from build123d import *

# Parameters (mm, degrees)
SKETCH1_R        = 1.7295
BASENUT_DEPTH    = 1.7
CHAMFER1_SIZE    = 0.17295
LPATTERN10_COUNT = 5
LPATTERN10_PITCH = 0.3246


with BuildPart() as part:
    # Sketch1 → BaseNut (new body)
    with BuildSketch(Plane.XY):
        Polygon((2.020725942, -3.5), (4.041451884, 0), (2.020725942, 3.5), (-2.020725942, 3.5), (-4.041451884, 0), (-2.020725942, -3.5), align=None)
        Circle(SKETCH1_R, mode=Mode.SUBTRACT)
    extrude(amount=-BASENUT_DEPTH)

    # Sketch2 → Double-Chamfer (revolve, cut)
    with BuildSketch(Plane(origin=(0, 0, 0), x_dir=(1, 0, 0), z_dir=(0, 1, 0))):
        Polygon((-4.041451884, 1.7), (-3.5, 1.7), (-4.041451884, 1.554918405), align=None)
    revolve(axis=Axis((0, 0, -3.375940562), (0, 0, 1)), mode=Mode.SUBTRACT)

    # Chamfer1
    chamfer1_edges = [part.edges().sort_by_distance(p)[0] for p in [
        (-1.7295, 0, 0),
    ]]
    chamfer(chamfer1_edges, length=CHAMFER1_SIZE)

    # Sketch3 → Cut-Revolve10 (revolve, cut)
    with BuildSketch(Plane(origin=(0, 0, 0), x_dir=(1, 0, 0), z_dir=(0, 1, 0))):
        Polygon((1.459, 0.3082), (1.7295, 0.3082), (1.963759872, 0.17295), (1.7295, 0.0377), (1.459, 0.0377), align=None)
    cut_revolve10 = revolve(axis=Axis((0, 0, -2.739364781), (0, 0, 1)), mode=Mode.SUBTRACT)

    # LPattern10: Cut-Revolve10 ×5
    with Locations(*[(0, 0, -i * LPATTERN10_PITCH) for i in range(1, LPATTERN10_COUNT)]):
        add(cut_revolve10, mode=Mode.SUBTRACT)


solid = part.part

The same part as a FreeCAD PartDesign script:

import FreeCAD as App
import Part
import Sketcher

V = App.Vector
Q = App.Units.Quantity


def edges_at(feature, points):
    """Names of the edges that pass closest to the given points."""
    edges = feature.Shape.Edges
    near = lambda p: min(range(len(edges)), key=lambda i: edges[i].distToShape(Part.Vertex(*p))[0])
    return sorted({f"Edge{near(p) + 1}" for p in points})

doc = App.newDocument("Part")
params = doc.addObject("Spreadsheet::Sheet", "Params")
for row, (alias, value) in enumerate([
    ("pad1_length", "1.7 mm"),
    ("groove_angle", "360 deg"),
    ("chamfer_size", "0.17295 mm"),
    ("groove2_angle", "360 deg"),
    ("linearpattern_pitch", "0.3246 mm"),
], start=1):
    params.set(f"A{row}", alias)
    params.set(f"B{row}", "=" + value)
    params.setAlias(f"B{row}", alias)

body = doc.addObject("PartDesign::Body", "Body")

# Sketch on XY plane
sketch1 = body.newObject("Sketcher::SketchObject", "Sketch")
sketch1.AttachmentSupport = (doc.getObject("XY_Plane"), [""])
sketch1.MapMode = "FlatFace"
sketch1.addGeometry([
    Part.LineSegment(V(2.020726, -3.5, 0), V(4.041452, 0, 0)),  # 0
    Part.LineSegment(V(4.041452, 0, 0), V(2.020726, 3.5, 0)),  # 1
    Part.LineSegment(V(2.020726, 3.5, 0), V(-2.020726, 3.5, 0)),  # 2
    Part.LineSegment(V(-2.020726, 3.5, 0), V(-4.041452, 0, 0)),  # 3
    Part.LineSegment(V(-4.041452, 0, 0), V(-2.020726, -3.5, 0)),  # 4
    Part.LineSegment(V(-2.020726, -3.5, 0), V(2.020726, -3.5, 0)),  # 5
    Part.Circle(V(0, 0, 0), V(0, 0, 1), 1.7295),  # 6
], False)
sketch1.addConstraint([
    Sketcher.Constraint("Coincident", 0, 2, 1, 1),
    Sketcher.Constraint("Coincident", 1, 2, 2, 1),
    Sketcher.Constraint("Coincident", 2, 2, 3, 1),
    Sketcher.Constraint("Coincident", 3, 2, 4, 1),
    Sketcher.Constraint("Coincident", 4, 2, 5, 1),
    Sketcher.Constraint("Coincident", 5, 2, 0, 1),
    Sketcher.Constraint("Horizontal", 2),
    Sketcher.Constraint("Horizontal", 5),
    Sketcher.Constraint("Coincident", 6, 3, -1, 1),
    Sketcher.Constraint("Symmetric", 0, 2, 3, 2, -1, 1),
    Sketcher.Constraint("Symmetric", 1, 2, 4, 2, -1, 1),
    Sketcher.Constraint("PointOnObject", 0, 2, -1),
    Sketcher.Constraint("Parallel", 0, 3),
    Sketcher.Constraint("Vertical", 2, 2, 4, 2),
    Sketcher.Constraint("Angle", 0, Q("60 deg")),
    Sketcher.Constraint("Diameter", 6, 3.459),
    Sketcher.Constraint("DistanceY", 4, 2, 2, 2, 7.0),
    Sketcher.Constraint("DistanceX", 2, 2, 2, 1, 4.041452),
])
pad1 = body.newObject("PartDesign::Pad", "Pad")
pad1.Profile = sketch1
pad1.setExpression("Length", "Params.pad1_length")
pad1.Reversed = True

# Sketch on XZ plane
sketch2 = body.newObject("Sketcher::SketchObject", "Sketch001")
sketch2.AttachmentSupport = (doc.getObject("XZ_Plane"), [""])
sketch2.MapMode = "FlatFace"
sketch2.addGeometry([
    Part.LineSegment(V(-3.5, -1.7, 0), V(-4.041452, -1.7, 0)),
    Part.LineSegment(V(-4.041452, -1.7, 0), V(-4.041452, -1.554918, 0)),
    Part.LineSegment(V(-4.041452, -1.554918, 0), V(-3.5, -1.7, 0)),
], False)
sketch2.addConstraint([
    Sketcher.Constraint("Coincident", 0, 2, 1, 1),
    Sketcher.Constraint("Coincident", 1, 2, 2, 1),
    Sketcher.Constraint("Coincident", 2, 2, 0, 1),
    Sketcher.Constraint("Horizontal", 0),
    Sketcher.Constraint("Vertical", 1),
    Sketcher.Constraint("Angle", 2, Q("-15 deg")),
    Sketcher.Constraint("DistanceY", 0, 2, -1, 1, 1.7),
    Sketcher.Constraint("DistanceX", 2, 2, -1, 1, 3.5),
    Sketcher.Constraint("DistanceX", 0, 2, 0, 1, 0.541452),
])
groove = body.newObject("PartDesign::Groove", "Groove")
groove.Profile = sketch2
groove.ReferenceAxis = (sketch2, ["V_Axis"])
groove.setExpression("Angle", "Params.groove_angle")
doc.recompute()

chamfer = body.newObject("PartDesign::Chamfer", "Chamfer")
chamfer.Base = (groove, edges_at(groove, [(-1.73, 0, 0)]))
chamfer.setExpression("Size", "Params.chamfer_size")

# Sketch on XZ plane
sketch3 = body.newObject("Sketcher::SketchObject", "Sketch002")
sketch3.AttachmentSupport = (doc.getObject("XZ_Plane"), [""])
sketch3.MapMode = "FlatFace"
sketch3.addGeometry([
    Part.LineSegment(V(1.7295, -0.3082, 0), V(1.459, -0.3082, 0)),  # 0
    Part.LineSegment(V(1.459, -0.3082, 0), V(1.459, -0.0377, 0)),  # 1
    Part.LineSegment(V(1.459, -0.0377, 0), V(1.7295, -0.0377, 0)),  # 2
    Part.LineSegment(V(1.7295, -0.0377, 0), V(1.96376, -0.17295, 0)),  # 3
    Part.LineSegment(V(1.96376, -0.17295, 0), V(1.7295, -0.3082, 0)),  # 4
], False)
sketch3.addConstraint([
    Sketcher.Constraint("Coincident", 0, 2, 1, 1),
    Sketcher.Constraint("Coincident", 1, 2, 2, 1),
    Sketcher.Constraint("Coincident", 2, 2, 3, 1),
    Sketcher.Constraint("Coincident", 3, 2, 4, 1),
    Sketcher.Constraint("Coincident", 4, 2, 0, 1),
    Sketcher.Constraint("Horizontal", 0),
    Sketcher.Constraint("Vertical", 1),
    Sketcher.Constraint("Horizontal", 2),
    Sketcher.Constraint("Vertical", 2, 2, 4, 2),
    Sketcher.Constraint("Equal", 2, 1),
    Sketcher.Constraint("Equal", 3, 4),
    Sketcher.Constraint("Angle", 3, Q("-30 deg")),
    Sketcher.Constraint("DistanceX", 0, 2, 0, 1, 0.2705),
    Sketcher.Constraint("DistanceX", -1, 1, 0, 2, 1.459),
    Sketcher.Constraint("DistanceY", 0, 2, -1, 1, 0.3082),
])
groove2 = body.newObject("PartDesign::Groove", "Groove001")
groove2.Profile = sketch3
groove2.ReferenceAxis = (sketch3, ["V_Axis"])
groove2.setExpression("Angle", "Params.groove2_angle")
doc.recompute()

linearpattern = body.newObject("PartDesign::LinearPattern", "LinearPattern")
linearpattern.Originals = [groove2]
linearpattern.Direction = (doc.getObject("Z_Axis"), [""])
linearpattern.Mode = "offset"
linearpattern.setExpression("Offset", "Params.linearpattern_pitch")
linearpattern.Occurrences = 5
linearpattern.Reversed = True
body.Tip = linearpattern

doc.recompute()
